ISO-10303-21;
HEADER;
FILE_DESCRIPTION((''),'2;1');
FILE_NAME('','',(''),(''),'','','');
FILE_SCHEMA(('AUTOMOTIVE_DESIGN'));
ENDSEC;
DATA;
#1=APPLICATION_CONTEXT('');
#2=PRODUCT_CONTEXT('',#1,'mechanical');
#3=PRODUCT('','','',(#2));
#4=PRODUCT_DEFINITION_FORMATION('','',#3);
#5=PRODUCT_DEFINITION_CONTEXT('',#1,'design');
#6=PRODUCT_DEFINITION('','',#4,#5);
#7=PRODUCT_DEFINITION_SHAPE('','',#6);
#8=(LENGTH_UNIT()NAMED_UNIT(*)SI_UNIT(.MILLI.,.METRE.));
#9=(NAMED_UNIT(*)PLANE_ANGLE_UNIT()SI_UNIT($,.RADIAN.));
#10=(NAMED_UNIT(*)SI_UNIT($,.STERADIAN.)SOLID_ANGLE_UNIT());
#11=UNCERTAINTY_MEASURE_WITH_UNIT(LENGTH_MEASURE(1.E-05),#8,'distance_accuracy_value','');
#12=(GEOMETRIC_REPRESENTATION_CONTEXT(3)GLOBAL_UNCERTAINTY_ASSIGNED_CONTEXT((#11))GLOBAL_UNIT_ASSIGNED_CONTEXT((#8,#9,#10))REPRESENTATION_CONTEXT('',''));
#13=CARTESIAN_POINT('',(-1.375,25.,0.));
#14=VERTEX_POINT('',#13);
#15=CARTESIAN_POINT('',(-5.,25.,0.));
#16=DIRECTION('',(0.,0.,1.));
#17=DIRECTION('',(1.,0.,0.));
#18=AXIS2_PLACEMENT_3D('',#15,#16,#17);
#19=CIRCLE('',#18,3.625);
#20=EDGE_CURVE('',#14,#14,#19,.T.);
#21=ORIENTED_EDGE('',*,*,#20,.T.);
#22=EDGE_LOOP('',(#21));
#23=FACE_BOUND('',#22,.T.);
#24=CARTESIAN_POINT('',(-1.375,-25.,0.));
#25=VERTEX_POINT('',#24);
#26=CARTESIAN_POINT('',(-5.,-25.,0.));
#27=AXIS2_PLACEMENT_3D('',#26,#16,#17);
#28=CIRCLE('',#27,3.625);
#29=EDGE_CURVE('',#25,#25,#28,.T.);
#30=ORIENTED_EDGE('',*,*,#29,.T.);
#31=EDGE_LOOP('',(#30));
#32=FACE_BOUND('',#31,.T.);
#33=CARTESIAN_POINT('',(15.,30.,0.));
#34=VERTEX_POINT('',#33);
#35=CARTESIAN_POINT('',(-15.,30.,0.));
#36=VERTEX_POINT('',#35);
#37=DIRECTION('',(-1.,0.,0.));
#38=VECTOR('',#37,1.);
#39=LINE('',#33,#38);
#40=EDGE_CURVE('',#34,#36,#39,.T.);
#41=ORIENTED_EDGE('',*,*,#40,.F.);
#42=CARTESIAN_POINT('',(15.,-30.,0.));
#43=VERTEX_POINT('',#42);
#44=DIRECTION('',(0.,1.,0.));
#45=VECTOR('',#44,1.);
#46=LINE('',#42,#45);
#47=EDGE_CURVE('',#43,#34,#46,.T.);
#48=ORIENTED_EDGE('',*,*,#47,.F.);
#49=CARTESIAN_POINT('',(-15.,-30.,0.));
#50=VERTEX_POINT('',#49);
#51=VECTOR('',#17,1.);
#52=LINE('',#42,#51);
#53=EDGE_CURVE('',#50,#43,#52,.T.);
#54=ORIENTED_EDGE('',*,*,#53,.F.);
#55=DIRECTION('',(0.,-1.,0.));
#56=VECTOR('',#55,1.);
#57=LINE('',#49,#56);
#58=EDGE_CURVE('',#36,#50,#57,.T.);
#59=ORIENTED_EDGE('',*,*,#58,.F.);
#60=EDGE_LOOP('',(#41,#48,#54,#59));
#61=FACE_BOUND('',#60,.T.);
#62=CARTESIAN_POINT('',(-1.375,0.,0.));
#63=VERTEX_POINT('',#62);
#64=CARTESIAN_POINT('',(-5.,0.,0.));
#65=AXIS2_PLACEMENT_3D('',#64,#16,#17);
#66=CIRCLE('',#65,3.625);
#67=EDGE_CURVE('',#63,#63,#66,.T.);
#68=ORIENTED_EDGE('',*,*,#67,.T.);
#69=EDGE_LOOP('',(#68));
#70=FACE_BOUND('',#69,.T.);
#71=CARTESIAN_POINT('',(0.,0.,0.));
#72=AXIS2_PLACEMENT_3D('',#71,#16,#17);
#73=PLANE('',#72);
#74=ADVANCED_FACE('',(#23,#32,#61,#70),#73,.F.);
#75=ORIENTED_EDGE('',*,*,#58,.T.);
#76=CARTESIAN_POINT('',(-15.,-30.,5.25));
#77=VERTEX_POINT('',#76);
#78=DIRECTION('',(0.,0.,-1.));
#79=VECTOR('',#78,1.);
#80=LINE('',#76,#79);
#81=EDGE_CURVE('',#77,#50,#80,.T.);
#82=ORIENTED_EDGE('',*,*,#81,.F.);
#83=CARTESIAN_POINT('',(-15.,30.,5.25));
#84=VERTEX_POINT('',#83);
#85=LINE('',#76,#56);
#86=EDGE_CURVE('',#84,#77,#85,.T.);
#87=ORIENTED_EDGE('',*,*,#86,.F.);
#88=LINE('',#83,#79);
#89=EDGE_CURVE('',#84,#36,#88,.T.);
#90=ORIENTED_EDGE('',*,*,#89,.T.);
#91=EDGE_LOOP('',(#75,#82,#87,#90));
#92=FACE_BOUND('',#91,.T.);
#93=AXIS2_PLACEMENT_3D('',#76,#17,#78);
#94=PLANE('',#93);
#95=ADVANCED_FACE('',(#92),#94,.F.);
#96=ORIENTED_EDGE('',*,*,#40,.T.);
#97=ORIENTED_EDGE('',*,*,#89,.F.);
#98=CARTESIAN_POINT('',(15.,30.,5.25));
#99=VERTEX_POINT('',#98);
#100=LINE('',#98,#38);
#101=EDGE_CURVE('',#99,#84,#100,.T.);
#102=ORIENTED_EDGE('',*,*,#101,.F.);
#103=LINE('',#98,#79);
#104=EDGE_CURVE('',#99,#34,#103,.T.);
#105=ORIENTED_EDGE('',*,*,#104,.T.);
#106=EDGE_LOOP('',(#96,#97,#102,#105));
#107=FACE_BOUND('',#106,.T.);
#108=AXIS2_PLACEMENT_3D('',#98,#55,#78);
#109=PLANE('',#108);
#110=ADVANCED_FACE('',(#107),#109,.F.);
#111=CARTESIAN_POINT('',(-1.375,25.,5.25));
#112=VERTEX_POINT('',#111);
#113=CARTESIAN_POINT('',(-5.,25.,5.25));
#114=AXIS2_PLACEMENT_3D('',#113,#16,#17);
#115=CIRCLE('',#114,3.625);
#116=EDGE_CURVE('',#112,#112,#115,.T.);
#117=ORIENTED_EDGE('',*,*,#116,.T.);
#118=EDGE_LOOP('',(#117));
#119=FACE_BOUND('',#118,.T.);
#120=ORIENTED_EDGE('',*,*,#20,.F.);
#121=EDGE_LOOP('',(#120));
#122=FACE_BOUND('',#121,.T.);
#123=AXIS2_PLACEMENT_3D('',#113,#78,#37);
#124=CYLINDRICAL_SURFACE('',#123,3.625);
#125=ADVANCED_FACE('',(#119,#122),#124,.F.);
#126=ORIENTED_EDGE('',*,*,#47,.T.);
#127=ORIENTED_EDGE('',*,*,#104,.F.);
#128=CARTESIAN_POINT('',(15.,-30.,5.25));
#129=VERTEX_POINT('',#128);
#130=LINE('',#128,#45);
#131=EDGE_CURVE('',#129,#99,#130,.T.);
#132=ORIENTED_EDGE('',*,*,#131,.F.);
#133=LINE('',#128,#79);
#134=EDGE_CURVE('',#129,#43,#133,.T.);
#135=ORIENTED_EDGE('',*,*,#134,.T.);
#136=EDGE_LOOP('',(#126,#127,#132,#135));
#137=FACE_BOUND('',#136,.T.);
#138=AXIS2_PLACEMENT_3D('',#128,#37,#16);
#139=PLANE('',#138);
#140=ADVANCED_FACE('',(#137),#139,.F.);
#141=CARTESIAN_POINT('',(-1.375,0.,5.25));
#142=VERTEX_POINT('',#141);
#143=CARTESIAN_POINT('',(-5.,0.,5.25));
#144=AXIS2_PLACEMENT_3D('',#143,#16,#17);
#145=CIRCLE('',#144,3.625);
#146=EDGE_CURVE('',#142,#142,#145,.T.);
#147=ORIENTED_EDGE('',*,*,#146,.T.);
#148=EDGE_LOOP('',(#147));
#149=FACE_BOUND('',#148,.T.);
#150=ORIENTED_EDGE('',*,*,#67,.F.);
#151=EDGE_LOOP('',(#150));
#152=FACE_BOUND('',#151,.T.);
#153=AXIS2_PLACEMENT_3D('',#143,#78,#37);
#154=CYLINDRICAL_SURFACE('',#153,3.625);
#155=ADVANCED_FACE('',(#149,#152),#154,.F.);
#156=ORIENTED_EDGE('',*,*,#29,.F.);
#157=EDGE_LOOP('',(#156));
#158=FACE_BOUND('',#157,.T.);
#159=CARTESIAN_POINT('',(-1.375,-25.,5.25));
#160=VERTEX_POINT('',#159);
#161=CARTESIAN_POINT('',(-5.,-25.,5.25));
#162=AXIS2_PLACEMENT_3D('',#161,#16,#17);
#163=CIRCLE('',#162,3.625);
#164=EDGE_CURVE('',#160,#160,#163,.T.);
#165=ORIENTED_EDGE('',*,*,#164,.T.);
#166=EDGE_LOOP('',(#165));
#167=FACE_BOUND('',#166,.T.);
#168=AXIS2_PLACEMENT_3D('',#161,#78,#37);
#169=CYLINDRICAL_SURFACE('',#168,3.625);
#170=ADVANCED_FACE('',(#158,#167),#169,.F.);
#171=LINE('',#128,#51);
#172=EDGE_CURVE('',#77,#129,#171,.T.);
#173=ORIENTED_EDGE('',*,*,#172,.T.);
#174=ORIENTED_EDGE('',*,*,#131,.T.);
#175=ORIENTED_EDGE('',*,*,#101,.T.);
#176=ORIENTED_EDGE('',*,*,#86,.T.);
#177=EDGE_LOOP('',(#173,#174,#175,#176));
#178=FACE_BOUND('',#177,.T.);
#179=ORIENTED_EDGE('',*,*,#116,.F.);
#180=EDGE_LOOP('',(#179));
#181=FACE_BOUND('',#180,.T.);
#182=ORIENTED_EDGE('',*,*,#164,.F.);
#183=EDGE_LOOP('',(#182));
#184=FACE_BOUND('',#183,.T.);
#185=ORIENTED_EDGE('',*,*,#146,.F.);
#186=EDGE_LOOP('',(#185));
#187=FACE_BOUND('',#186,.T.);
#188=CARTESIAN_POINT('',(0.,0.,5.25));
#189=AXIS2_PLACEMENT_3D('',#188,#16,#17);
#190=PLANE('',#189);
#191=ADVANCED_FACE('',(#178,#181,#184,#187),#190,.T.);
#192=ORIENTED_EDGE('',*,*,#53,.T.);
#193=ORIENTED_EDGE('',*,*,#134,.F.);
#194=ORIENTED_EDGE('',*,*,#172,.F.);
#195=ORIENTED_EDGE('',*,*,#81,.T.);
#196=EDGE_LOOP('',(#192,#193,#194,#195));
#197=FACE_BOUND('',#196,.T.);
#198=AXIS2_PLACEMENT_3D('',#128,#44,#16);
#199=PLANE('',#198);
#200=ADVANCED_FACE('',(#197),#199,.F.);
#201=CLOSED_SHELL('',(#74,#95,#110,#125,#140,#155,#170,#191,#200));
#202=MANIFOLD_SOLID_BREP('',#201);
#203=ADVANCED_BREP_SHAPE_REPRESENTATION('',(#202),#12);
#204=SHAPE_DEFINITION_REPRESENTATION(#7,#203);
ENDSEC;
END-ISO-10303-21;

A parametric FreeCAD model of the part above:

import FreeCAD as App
import Part
import Sketcher

V = App.Vector
Q = App.Units.Quantity


def add_polygon(sketch, points):
    """Adds a closed chain of lines whose ends are joined by coincident constraints."""
    first, n = sketch.GeometryCount, len(points)
    for a, b in zip(points, points[1:] + points[:1]):
        sketch.addGeometry(Part.LineSegment(App.Vector(*a, 0), App.Vector(*b, 0)), False)
    for i in range(n):
        sketch.addConstraint(Sketcher.Constraint("Coincident", first + i, 2, first + (i + 1) % n, 1))

doc = App.newDocument("Part")
params = doc.addObject("Spreadsheet::Sheet", "Params")
for row, (alias, value) in enumerate([
    ("sketch1_diameter", "7.25 mm"),
    ("sketch1_width", "30 mm"),
    ("sketch1_height", "60 mm"),
    ("pad1_length", "5.25 mm"),
], start=1):
    params.set(f"A{row}", alias)
    params.set(f"B{row}", "=" + value)
    params.setAlias(f"B{row}", alias)

body = doc.addObject("PartDesign::Body", "Body")

# Sketch on XY plane
sketch1 = body.newObject("Sketcher::SketchObject", "Sketch")
sketch1.AttachmentSupport = (doc.getObject("XY_Plane"), [""])
sketch1.MapMode = "FlatFace"
add_polygon(sketch1, [(-15, 30), (-15, -30), (15, -30), (15, 30)])  # lines 0-3
sketch1.addGeometry(Part.Circle(V(-5, -25, 0), V(0, 0, 1), 3.625), False)  # 4
sketch1.addGeometry(Part.Circle(V(-5, 0, 0), V(0, 0, 1), 3.625), False)  # 5
sketch1.addGeometry(Part.Circle(V(-5, 25, 0), V(0, 0, 1), 3.625), False)  # 6
sketch1.addConstraint([
    Sketcher.Constraint("Vertical", 0),
    Sketcher.Constraint("Horizontal", 1),
    Sketcher.Constraint("Vertical", 2),
    Sketcher.Constraint("Horizontal", 3),
    Sketcher.Constraint("Equal", 4, 5),
    Sketcher.Constraint("Equal", 5, 6),
    Sketcher.Constraint("Symmetric", 0, 2, 2, 2, -1, 1),
    Sketcher.Constraint("Symmetric", 4, 3, 6, 3, -1),
    Sketcher.Constraint("PointOnObject", 5, 3, -1),
    Sketcher.Constraint("Vertical", 4, 3, 5, 3),
    Sketcher.Constraint("Diameter", 4, Q("7.25 mm")),
    Sketcher.Constraint("DistanceX", 1, 1, 1, 2, Q("30 mm")),
    Sketcher.Constraint("DistanceY", 0, 2, 0, 1, Q("60 mm")),
    Sketcher.Constraint("DistanceX", 4, 3, -1, 1, Q("5 mm")),
    Sketcher.Constraint("DistanceY", 4, 3, -1, 1, Q("25 mm")),
])
sketch1.setExpression("Constraints[14]", "Params.sketch1_diameter")
sketch1.setExpression("Constraints[15]", "Params.sketch1_width")
sketch1.setExpression("Constraints[16]", "Params.sketch1_height")
pad1 = body.newObject("PartDesign::Pad", "Pad")
pad1.Profile = sketch1
pad1.setExpression("Length", "Params.pad1_length")

doc.recompute()
